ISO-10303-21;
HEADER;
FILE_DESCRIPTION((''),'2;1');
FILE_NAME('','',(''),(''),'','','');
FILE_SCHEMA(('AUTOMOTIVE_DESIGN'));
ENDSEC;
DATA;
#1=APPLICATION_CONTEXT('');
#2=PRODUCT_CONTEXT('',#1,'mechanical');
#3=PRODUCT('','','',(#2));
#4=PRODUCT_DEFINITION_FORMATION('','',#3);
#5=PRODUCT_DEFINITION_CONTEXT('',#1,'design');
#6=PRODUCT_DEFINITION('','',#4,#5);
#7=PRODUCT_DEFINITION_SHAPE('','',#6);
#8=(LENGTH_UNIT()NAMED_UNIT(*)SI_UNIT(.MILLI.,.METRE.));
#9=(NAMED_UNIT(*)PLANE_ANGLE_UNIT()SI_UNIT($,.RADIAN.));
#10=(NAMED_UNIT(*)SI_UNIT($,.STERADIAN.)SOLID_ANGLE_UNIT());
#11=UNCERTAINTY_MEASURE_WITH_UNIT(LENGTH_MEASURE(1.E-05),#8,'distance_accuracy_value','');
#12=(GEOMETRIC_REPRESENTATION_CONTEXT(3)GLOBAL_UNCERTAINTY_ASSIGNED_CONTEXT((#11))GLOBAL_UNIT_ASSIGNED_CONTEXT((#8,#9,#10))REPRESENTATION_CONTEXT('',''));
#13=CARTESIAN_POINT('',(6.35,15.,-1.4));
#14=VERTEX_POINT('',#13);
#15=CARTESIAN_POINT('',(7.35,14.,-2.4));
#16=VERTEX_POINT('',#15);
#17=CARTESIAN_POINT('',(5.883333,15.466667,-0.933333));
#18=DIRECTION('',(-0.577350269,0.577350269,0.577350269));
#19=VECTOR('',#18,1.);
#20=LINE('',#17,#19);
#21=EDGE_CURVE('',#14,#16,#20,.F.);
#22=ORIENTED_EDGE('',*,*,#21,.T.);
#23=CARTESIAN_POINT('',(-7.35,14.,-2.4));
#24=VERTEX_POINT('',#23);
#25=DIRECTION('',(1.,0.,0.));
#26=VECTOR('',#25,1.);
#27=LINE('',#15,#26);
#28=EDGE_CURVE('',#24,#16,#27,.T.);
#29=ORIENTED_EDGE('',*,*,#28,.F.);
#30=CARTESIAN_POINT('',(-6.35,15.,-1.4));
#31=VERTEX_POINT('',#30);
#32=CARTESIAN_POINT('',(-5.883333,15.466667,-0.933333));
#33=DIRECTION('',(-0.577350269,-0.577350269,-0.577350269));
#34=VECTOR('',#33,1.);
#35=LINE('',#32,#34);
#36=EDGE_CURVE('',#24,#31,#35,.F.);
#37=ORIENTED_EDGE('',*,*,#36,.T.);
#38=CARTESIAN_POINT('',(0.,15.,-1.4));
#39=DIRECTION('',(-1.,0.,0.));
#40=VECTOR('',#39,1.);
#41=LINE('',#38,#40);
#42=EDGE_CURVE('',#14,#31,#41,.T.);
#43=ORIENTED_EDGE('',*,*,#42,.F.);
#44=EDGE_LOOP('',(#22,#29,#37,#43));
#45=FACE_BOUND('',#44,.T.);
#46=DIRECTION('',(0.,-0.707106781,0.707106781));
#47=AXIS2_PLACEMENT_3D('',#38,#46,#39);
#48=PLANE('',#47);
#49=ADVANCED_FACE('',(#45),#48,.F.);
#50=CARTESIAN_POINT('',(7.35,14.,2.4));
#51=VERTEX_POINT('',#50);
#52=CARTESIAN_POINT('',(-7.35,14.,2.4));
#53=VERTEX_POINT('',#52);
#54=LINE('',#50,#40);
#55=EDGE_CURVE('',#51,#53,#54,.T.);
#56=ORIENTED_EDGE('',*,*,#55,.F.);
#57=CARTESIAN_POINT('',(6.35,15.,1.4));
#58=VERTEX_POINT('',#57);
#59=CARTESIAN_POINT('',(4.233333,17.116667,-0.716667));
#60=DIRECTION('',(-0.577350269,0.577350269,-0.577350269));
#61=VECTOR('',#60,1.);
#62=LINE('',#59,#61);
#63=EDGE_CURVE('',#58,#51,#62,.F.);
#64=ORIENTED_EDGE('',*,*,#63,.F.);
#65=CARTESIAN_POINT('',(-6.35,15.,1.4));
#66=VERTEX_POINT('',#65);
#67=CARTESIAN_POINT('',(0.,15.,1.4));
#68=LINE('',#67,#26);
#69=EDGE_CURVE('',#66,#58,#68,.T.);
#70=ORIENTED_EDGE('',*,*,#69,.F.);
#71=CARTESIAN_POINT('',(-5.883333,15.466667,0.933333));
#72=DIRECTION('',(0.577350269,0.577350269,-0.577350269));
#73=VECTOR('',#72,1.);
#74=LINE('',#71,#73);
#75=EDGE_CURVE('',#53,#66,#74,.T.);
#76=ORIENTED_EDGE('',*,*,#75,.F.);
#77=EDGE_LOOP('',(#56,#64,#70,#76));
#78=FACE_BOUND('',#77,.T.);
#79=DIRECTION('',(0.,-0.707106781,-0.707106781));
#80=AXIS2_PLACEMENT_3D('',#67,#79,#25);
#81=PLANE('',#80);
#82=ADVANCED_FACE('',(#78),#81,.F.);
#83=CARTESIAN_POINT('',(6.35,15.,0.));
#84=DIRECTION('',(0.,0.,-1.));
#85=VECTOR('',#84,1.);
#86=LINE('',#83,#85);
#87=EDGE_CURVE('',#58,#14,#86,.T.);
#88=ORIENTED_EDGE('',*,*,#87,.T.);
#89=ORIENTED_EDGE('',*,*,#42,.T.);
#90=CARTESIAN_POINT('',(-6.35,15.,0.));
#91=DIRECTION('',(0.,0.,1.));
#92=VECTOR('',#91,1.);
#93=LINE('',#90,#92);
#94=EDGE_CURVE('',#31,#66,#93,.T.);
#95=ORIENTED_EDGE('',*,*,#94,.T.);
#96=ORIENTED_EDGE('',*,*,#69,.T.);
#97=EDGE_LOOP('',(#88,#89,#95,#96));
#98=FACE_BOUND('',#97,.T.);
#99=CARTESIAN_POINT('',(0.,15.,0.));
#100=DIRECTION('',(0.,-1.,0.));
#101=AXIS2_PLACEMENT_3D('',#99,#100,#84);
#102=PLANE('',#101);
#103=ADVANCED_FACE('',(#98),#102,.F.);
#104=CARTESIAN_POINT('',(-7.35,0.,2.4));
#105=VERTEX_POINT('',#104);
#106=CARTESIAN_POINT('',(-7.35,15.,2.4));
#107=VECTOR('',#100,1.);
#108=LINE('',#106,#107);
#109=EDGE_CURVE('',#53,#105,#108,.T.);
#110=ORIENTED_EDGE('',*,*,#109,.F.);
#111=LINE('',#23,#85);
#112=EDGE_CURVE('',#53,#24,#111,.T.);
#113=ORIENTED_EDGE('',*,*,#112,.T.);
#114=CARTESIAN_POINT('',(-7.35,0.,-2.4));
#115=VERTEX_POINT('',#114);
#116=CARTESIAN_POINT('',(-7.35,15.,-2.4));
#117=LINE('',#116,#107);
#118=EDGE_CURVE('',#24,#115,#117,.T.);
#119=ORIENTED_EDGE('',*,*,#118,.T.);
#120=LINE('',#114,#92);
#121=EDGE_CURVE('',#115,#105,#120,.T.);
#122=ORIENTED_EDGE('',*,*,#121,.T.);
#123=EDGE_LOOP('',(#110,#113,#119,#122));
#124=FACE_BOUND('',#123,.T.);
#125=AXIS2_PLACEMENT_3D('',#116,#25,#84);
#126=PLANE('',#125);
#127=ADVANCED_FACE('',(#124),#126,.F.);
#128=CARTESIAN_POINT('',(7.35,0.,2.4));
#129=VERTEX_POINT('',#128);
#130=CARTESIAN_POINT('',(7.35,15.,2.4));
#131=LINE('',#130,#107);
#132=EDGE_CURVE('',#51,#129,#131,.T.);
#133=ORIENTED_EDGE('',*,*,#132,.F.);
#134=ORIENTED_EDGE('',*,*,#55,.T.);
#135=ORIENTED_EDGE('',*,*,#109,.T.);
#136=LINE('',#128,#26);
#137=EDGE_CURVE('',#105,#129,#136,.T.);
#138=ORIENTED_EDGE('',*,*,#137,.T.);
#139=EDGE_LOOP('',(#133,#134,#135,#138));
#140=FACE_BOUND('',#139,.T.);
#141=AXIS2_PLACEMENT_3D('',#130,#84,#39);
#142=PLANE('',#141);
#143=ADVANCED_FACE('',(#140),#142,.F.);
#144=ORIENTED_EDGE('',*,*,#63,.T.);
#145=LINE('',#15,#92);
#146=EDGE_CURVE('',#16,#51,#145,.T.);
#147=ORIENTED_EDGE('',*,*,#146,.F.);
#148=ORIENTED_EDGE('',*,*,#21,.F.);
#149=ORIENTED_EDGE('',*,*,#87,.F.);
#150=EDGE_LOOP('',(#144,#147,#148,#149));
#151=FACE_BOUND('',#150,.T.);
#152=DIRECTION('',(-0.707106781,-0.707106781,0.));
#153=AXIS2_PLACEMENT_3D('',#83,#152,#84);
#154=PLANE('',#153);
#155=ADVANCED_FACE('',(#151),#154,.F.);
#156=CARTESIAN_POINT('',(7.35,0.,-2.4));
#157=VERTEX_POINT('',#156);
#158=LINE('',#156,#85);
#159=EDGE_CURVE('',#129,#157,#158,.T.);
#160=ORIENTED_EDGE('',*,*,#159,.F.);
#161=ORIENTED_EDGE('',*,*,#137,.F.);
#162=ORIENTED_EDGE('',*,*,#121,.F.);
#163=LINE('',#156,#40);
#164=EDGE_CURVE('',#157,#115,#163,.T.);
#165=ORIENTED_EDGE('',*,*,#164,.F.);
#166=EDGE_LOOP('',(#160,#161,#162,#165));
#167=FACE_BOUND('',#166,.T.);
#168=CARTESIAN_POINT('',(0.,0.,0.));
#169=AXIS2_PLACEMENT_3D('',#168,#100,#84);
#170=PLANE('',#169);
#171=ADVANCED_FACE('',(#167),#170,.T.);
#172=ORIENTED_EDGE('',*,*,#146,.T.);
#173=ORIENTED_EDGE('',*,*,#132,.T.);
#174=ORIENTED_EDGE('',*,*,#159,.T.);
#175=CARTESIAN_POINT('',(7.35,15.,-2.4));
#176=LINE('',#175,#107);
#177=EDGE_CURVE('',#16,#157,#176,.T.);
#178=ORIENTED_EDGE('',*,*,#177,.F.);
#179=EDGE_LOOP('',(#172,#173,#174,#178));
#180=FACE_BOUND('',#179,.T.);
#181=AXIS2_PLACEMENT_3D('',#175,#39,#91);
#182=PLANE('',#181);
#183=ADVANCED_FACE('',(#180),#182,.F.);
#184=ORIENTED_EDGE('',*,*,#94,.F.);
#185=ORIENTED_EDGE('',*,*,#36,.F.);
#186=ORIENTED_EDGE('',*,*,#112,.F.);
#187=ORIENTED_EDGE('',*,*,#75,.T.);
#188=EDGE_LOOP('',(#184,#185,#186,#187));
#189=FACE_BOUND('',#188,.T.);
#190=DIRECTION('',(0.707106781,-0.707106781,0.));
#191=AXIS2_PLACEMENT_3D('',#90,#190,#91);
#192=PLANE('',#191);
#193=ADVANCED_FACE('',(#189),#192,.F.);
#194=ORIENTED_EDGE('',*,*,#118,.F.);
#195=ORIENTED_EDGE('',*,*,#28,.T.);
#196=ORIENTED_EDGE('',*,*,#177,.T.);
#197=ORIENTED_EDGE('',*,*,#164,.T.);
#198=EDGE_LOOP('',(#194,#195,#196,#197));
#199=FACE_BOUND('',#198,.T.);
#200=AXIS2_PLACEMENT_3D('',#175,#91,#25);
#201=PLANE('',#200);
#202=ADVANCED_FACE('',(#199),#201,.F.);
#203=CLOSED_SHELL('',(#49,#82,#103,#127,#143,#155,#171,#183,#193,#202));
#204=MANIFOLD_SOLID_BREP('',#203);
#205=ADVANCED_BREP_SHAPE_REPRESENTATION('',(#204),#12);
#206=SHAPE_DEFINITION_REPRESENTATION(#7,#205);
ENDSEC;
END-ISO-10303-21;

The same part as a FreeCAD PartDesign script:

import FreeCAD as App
import Part
import Sketcher
from FreeCAD import Vector


def edges_at(feature, points):
    """Names of the edges that pass closest to the given points."""
    edges = feature.Shape.Edges
    near = lambda p: min(range(len(edges)), key=lambda i: edges[i].distToShape(Part.Vertex(*p))[0])
    return sorted({f"Edge{near(p) + 1}" for p in points})


def add_polygon(sketch, points):
    """Adds a closed chain of lines whose ends are joined by coincident constraints."""
    first, n = sketch.GeometryCount, len(points)
    for a, b in zip(points, points[1:] + points[:1]):
        sketch.addGeometry(Part.LineSegment(App.Vector(*a, 0), App.Vector(*b, 0)), False)
    for i in range(n):
        sketch.addConstraint(Sketcher.Constraint("Coincident", first + i, 2, first + (i + 1) % n, 1))

doc = App.newDocument("Part")
body = doc.addObject("PartDesign::Body", "Body")

# Sketch on XZ plane
sketch1 = doc.addObject("Sketcher::SketchObject", "Sketch")
body.addObject(sketch1)
sketch1.AttachmentSupport = (doc.XZ_Plane, [""])
sketch1.MapMode = "FlatFace"
add_polygon(sketch1, [(-7.3, -2.4), (-7.3, 2.4), (7.3, 2.4), (7.3, -2.4)])  # lines 0-3
sketch1.addConstraint([
    Sketcher.Constraint("Vertical", 0),
    Sketcher.Constraint("Horizontal", 1),
    Sketcher.Constraint("Vertical", 2),
    Sketcher.Constraint("Horizontal", 3),
    Sketcher.Constraint("Symmetric", 0, 2, 2, 2, -1, 1),
    Sketcher.Constraint("DistanceX", 1, 1, 1, 2, 14.7),
    Sketcher.Constraint("DistanceY", 0, 1, 0, 2, 4.8),
])
pad1 = doc.addObject("PartDesign::Pad", "Pad")
body.addObject(pad1)
pad1.Profile = sketch1
pad1.Length = 15
pad1.Reversed = True
doc.recompute()

chamfer = doc.addObject("PartDesign::Chamfer", "Chamfer")
body.addObject(chamfer)
chamfer.Base = (pad1, edges_at(pad1, [
    (7.35, 15, 0),
    (0, 15, -2.4),
    (-7.35, 15, 0),
    (0, 15, 2.4),
]))
chamfer.Size = 1

doc.recompute()
